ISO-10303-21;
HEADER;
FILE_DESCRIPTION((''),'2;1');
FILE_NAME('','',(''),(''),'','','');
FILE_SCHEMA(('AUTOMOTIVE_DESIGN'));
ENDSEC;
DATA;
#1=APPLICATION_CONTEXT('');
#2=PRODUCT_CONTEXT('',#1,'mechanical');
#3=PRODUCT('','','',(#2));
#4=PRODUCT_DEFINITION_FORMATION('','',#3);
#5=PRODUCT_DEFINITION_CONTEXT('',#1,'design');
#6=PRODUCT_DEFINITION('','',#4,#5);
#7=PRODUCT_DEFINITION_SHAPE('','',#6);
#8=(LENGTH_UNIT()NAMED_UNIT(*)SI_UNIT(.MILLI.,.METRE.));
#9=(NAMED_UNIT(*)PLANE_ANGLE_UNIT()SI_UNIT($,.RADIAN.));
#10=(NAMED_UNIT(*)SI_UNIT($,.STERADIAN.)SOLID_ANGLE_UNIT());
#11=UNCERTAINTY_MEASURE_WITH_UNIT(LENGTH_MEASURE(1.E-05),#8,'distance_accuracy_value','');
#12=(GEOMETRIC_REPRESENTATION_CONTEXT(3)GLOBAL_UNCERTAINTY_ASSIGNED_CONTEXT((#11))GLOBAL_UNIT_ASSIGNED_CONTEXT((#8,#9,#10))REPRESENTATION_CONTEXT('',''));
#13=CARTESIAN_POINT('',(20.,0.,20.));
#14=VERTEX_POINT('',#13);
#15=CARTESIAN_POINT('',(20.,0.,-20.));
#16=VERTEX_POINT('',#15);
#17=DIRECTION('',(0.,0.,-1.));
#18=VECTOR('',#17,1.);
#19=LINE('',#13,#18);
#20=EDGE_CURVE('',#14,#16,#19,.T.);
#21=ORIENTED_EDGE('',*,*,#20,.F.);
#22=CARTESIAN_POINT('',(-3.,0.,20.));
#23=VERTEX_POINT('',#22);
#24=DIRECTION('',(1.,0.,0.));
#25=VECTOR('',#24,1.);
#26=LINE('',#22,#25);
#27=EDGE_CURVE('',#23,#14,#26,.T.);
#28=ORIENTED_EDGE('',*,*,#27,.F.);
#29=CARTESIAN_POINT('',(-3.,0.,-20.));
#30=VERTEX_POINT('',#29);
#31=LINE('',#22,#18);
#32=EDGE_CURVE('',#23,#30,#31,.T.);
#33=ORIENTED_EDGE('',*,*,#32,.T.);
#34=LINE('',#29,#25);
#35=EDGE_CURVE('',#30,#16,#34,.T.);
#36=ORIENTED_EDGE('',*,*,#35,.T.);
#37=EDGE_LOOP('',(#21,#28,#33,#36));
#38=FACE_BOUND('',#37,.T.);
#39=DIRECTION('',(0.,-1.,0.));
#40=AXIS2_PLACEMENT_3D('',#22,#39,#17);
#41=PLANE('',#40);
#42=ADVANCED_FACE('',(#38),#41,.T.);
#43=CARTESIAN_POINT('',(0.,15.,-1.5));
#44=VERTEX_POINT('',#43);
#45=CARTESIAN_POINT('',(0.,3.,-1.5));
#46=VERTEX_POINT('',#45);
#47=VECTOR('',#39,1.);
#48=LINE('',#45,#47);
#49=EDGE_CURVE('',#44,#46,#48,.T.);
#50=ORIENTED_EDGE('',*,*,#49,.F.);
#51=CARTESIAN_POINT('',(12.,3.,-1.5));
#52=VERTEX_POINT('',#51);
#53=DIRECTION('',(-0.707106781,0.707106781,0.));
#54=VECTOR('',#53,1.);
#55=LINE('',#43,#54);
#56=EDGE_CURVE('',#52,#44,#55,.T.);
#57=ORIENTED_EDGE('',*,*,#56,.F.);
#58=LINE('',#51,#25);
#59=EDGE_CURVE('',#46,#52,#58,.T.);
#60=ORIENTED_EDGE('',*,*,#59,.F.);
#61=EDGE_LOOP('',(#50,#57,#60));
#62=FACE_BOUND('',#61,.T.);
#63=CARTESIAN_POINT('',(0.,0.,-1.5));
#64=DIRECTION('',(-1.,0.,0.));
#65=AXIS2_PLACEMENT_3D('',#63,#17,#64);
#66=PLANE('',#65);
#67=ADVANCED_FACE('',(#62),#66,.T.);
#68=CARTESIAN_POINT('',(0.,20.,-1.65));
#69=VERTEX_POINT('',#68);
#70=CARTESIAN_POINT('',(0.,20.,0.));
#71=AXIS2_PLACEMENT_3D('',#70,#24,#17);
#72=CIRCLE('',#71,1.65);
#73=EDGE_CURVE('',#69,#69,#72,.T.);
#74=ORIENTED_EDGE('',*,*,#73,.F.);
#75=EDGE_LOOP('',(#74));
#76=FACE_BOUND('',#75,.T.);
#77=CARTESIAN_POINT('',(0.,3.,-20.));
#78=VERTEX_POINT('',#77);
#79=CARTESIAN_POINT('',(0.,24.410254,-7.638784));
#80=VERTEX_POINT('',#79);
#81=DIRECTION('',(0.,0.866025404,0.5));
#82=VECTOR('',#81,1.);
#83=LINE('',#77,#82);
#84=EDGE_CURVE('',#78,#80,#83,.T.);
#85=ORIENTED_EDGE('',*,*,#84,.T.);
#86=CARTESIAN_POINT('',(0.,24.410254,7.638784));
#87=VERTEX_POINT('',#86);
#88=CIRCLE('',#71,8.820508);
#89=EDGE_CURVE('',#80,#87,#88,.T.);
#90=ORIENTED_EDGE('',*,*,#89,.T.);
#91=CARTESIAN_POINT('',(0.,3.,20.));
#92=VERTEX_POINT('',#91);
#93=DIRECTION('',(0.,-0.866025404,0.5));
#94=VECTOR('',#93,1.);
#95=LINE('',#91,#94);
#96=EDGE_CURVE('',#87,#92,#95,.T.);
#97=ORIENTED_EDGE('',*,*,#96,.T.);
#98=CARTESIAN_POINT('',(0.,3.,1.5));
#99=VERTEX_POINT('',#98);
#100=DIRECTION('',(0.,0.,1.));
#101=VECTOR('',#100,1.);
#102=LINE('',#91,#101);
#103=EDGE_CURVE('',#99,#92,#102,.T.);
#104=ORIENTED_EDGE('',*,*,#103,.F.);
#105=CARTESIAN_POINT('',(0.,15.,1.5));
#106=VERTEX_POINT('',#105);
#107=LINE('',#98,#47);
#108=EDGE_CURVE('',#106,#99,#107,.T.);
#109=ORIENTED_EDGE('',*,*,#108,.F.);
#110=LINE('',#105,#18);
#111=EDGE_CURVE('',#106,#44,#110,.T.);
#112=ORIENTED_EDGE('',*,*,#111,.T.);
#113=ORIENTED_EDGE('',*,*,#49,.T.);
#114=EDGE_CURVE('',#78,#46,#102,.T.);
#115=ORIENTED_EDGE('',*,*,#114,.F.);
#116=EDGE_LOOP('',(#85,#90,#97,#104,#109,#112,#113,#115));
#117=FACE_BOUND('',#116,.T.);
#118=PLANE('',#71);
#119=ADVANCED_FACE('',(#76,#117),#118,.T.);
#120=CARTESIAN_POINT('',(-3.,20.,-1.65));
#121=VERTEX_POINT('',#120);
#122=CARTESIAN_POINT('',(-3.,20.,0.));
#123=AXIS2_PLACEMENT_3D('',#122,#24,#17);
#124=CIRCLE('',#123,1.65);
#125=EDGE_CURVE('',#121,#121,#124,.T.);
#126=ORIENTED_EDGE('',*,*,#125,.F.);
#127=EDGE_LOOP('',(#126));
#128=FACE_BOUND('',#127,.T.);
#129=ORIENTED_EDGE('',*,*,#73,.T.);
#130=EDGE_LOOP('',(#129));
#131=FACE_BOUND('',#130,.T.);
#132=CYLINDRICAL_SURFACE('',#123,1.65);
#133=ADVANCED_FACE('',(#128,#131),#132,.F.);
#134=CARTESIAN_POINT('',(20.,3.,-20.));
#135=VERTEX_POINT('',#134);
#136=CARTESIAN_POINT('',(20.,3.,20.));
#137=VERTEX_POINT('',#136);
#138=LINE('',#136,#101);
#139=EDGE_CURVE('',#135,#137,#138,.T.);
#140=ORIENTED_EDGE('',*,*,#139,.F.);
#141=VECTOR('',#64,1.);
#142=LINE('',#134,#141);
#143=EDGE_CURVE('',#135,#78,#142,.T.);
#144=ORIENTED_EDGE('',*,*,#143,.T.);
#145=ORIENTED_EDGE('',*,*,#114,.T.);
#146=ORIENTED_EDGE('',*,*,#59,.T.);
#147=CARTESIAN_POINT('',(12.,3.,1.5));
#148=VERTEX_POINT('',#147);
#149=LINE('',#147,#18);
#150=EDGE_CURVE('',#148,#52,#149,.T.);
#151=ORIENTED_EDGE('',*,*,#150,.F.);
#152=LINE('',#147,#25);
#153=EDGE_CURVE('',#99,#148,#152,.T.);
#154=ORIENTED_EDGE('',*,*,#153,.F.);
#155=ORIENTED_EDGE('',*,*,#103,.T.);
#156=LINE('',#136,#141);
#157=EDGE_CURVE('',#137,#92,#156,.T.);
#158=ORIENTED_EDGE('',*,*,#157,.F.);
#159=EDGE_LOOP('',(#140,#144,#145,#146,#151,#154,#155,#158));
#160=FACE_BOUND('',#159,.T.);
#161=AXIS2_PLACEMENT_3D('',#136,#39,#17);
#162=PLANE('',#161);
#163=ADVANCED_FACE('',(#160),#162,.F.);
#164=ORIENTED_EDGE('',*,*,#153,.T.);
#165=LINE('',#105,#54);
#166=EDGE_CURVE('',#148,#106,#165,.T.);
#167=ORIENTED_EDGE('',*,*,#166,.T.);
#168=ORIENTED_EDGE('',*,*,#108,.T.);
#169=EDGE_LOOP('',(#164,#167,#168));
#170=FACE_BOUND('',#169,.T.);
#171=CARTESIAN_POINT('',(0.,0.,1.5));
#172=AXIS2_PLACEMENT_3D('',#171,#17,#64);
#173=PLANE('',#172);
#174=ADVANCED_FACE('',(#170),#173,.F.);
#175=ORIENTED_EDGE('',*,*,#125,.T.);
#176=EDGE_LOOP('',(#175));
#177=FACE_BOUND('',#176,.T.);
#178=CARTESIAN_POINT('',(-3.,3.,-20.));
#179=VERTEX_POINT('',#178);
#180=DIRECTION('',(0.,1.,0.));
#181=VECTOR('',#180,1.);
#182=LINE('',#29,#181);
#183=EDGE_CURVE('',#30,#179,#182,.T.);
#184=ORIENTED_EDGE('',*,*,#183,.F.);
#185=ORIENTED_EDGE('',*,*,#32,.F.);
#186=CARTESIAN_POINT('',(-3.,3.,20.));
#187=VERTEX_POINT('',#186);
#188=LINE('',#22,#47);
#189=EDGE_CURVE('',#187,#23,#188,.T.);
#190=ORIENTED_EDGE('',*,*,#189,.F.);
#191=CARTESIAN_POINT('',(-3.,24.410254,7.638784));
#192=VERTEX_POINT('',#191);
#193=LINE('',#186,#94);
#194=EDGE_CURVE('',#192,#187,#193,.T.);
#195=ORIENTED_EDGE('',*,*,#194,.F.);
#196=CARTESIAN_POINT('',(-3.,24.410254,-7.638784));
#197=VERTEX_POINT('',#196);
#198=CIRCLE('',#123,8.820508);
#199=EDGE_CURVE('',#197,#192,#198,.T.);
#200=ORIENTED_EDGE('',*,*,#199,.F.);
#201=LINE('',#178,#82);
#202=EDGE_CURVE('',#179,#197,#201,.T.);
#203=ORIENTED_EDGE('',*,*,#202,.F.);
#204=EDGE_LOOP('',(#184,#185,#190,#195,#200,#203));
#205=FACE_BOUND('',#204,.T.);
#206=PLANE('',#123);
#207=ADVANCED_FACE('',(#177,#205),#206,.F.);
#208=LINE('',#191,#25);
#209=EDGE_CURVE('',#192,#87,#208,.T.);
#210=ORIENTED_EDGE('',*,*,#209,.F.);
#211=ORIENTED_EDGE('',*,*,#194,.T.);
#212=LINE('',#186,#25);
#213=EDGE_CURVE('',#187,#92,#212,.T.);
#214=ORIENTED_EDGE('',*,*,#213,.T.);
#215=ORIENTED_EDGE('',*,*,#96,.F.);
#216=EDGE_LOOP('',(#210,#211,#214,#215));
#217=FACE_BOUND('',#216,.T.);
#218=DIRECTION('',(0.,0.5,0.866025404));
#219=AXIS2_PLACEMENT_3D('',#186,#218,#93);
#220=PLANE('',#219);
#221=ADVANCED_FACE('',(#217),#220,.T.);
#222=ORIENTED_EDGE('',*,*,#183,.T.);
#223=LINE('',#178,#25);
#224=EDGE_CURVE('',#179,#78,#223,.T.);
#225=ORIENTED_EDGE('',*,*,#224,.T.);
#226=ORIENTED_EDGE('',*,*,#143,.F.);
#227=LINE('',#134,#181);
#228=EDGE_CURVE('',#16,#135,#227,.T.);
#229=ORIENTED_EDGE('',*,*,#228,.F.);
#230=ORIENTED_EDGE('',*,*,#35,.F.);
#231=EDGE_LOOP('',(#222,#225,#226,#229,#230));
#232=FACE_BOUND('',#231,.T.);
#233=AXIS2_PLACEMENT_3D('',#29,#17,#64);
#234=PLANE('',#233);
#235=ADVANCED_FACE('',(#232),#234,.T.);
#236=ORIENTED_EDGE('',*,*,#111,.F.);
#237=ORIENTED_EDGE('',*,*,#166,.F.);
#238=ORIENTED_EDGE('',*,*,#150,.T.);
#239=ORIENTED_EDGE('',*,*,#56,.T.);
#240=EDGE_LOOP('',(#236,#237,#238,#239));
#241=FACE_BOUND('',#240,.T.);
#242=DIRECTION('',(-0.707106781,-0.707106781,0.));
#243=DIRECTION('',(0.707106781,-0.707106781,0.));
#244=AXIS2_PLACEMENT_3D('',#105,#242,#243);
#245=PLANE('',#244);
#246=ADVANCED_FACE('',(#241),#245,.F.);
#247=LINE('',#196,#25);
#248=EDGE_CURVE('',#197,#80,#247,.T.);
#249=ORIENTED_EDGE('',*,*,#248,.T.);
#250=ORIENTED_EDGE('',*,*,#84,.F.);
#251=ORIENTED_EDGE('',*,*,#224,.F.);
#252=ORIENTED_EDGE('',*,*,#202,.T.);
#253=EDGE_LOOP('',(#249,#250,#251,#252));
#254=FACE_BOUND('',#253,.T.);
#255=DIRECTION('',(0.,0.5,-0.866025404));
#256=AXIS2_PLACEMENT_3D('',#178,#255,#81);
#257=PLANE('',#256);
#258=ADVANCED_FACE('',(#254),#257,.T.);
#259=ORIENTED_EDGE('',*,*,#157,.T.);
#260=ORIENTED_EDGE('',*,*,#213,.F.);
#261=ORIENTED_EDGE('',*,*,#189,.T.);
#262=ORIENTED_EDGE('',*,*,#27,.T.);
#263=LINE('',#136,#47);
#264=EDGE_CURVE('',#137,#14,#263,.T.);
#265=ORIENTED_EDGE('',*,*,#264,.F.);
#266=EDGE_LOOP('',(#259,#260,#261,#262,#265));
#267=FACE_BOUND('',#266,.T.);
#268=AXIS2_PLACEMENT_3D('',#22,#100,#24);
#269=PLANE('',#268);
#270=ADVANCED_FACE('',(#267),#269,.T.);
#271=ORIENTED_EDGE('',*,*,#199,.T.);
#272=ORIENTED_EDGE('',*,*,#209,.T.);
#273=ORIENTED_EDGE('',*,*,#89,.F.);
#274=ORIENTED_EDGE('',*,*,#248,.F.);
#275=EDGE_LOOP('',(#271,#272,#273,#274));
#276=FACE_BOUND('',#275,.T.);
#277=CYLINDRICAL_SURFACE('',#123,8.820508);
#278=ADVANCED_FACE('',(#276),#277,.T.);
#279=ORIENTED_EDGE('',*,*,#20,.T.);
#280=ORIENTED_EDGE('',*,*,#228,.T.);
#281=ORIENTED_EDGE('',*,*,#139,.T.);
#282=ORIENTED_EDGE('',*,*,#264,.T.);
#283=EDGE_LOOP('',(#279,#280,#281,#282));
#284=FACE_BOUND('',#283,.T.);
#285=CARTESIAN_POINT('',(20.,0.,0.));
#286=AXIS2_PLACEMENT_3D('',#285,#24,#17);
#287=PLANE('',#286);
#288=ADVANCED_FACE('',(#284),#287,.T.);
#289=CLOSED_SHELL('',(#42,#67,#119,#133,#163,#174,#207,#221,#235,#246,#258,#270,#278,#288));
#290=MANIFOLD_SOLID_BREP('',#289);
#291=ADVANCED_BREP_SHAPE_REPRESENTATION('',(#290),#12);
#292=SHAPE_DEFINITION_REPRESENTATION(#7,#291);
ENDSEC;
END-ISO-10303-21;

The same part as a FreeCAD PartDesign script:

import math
import FreeCAD as App
import Part
import Sketcher
from FreeCAD import Vector
Q = App.Units.Quantity

doc = App.newDocument("Part")
body = doc.addObject("PartDesign::Body", "Body")

# Sketch on YZ plane
sketch1 = body.newObject("Sketcher::SketchObject", "Sketch")
sketch1.AttachmentSupport = (doc.getObject("YZ_Plane"), [""])
sketch1.MapMode = "FlatFace"
sketch1.addGeometry([
    Part.LineSegment(Vector(0, 20, 0), Vector(0, -20, 0)),  # 0
    Part.LineSegment(Vector(0, -20, 0), Vector(3, -20, 0)),  # 1
    Part.LineSegment(Vector(3, -20, 0), Vector(24.4, -7.6, 0)),  # 2
    Part.ArcOfCircle(Part.Circle(Vector(20, 0, 0), Vector(0, 0, 1), 8.8), math.radians(-60), math.radians(60)),  # 3
    Part.LineSegment(Vector(24.4, 7.6, 0), Vector(3, 20, 0)),  # 4
    Part.LineSegment(Vector(3, 20, 0), Vector(0, 20, 0)),  # 5
], False)
sketch1.addConstraint([
    Sketcher.Constraint("Coincident", 0, 2, 1, 1),
    Sketcher.Constraint("Coincident", 1, 2, 2, 1),
    Sketcher.Constraint("Tangent", 2, 2, 3, 1),
    Sketcher.Constraint("Tangent", 3, 2, 4, 1),
    Sketcher.Constraint("Coincident", 4, 2, 5, 1),
    Sketcher.Constraint("Coincident", 5, 2, 0, 1),
    Sketcher.Constraint("Vertical", 0),
    Sketcher.Constraint("Horizontal", 1),
    Sketcher.Constraint("Horizontal", 5),
    Sketcher.Constraint("Symmetric", 0, 2, 5, 2, -1, 1),
    Sketcher.Constraint("Symmetric", 2, 2, 3, 2, -1),
    Sketcher.Constraint("DistanceX", 1, 1, 1, 2, Q("3 mm")),
    Sketcher.Constraint("DistanceY", 0, 2, 0, 1, Q("40 mm")),
    Sketcher.Constraint("Angle", 2, Q("30 deg")),
    Sketcher.Constraint("DistanceX", -1, 1, 3, 3, Q("20 mm")),
])
pad1 = body.newObject("PartDesign::Pad", "Pad")
pad1.Profile = sketch1
pad1.Length = 3
pad1.Reversed = True

# Sketch on YZ plane
sketch2 = body.newObject("Sketcher::SketchObject", "Sketch001")
sketch2.AttachmentSupport = (doc.getObject("YZ_Plane"), [""])
sketch2.MapMode = "FlatFace"
sketch2.addGeometry(Part.Circle(Vector(20, 0, 0), Vector(0, 0, 1), 1.6), False)
sketch2.addConstraint([
    Sketcher.Constraint("PointOnObject", 0, 3, -1),
    Sketcher.Constraint("Diameter", 0, Q("3.3 mm")),
    Sketcher.Constraint("DistanceX", -1, 1, 0, 3, Q("20 mm")),
])
pocket1 = body.newObject("PartDesign::Pocket", "Pocket")
pocket1.Profile = sketch2
pocket1.Type = "ThroughAll"

# Sketch on YZ plane
sketch3 = body.newObject("Sketcher::SketchObject", "Sketch002")
sketch3.AttachmentSupport = (doc.getObject("YZ_Plane"), [""])
sketch3.MapMode = "FlatFace"
sketch3.addGeometry([
    Part.LineSegment(Vector(3, 20, 0), Vector(0, 20, 0)),
    Part.LineSegment(Vector(0, 20, 0), Vector(0, -20, 0)),
    Part.LineSegment(Vector(0, -20, 0), Vector(3, -20, 0)),
    Part.LineSegment(Vector(3, -20, 0), Vector(3, 20, 0)),
], False)
sketch3.addConstraint([
    Sketcher.Constraint("Coincident", 0, 2, 1, 1),
    Sketcher.Constraint("Coincident", 1, 2, 2, 1),
    Sketcher.Constraint("Coincident", 2, 2, 3, 1),
    Sketcher.Constraint("Coincident", 3, 2, 0, 1),
    Sketcher.Constraint("Horizontal", 0),
    Sketcher.Constraint("Vertical", 1),
    Sketcher.Constraint("Horizontal", 2),
    Sketcher.Constraint("Vertical", 3),
    Sketcher.Constraint("Symmetric", 0, 2, 1, 2, -1, 1),
    Sketcher.Constraint("DistanceX", 0, 2, 0, 1, Q("3 mm")),
    Sketcher.Constraint("DistanceY", 1, 2, 1, 1, Q("40 mm")),
])
pad2 = body.newObject("PartDesign::Pad", "Pad001")
pad2.Profile = sketch3
pad2.Length = 20

# Sketch on XY plane
sketch4 = body.newObject("Sketcher::SketchObject", "Sketch003")
sketch4.AttachmentSupport = (doc.getObject("XY_Plane"), [""])
sketch4.MapMode = "FlatFace"
sketch4.addGeometry([
    Part.LineSegment(Vector(0, 15, 0), Vector(0, 3, 0)),
    Part.LineSegment(Vector(0, 3, 0), Vector(12, 3, 0)),
    Part.LineSegment(Vector(12, 3, 0), Vector(0, 15, 0)),
], False)
sketch4.addConstraint([
    Sketcher.Constraint("Coincident", 0, 2, 1, 1),
    Sketcher.Constraint("Coincident", 1, 2, 2, 1),
    Sketcher.Constraint("Coincident", 2, 2, 0, 1),
    Sketcher.Constraint("Vertical", 0),
    Sketcher.Constraint("Horizontal", 1),
    Sketcher.Constraint("PointOnObject", 0, 2, -2),
    Sketcher.Constraint("Equal", 1, 0),
    Sketcher.Constraint("DistanceX", 1, 1, 1, 2, Q("12 mm")),
    Sketcher.Constraint("DistanceY", -1, 1, 0, 2, Q("3 mm")),
])
pad3 = body.newObject("PartDesign::Pad", "Pad002")
pad3.Profile = sketch4
pad3.Length = 3
pad3.Midplane = True

doc.recompute()
